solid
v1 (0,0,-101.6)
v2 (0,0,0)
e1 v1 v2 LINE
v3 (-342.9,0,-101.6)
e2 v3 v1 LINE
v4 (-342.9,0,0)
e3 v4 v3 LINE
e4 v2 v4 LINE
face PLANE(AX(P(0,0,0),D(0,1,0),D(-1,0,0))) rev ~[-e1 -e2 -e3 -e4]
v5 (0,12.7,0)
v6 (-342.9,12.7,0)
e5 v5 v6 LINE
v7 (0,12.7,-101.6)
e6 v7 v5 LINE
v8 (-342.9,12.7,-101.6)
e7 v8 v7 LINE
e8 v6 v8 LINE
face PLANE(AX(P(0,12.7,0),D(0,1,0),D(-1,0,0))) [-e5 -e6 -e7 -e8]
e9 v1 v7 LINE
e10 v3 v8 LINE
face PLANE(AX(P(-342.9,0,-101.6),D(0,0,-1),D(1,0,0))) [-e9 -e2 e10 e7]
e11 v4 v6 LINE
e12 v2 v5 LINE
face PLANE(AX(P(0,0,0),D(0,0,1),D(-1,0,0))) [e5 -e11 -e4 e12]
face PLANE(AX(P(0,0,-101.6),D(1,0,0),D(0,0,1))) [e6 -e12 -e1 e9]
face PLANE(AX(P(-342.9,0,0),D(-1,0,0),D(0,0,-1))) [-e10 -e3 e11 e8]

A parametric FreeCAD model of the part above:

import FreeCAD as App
import Part
import Sketcher
from FreeCAD import Vector
Q = App.Units.Quantity


def add_polygon(sketch, points):
    """Adds a closed chain of lines whose ends are joined by coincident constraints."""
    first, n = sketch.GeometryCount, len(points)
    for a, b in zip(points, points[1:] + points[:1]):
        sketch.addGeometry(Part.LineSegment(App.Vector(*a, 0), App.Vector(*b, 0)), False)
    for i in range(n):
        sketch.addConstraint(Sketcher.Constraint("Coincident", first + i, 2, first + (i + 1) % n, 1))

doc = App.newDocument("Part")
body = doc.addObject("PartDesign::Body", "Body")

sketch1 = body.newObject("Sketcher::SketchObject", "Sketch")
sketch1.AttachmentSupport = (doc.getObject("XZ_Plane"), [""])
sketch1.MapMode = "FlatFace"
add_polygon(sketch1, [(-342.9, 0), (0, 0), (0, -101.6), (-342.9, -101.6)])
sketch1.addConstraint([
    Sketcher.Constraint("Horizontal", 0),
    Sketcher.Constraint("Vertical", 1),
    Sketcher.Constraint("Horizontal", 2),
    Sketcher.Constraint("Vertical", 3),
    Sketcher.Constraint("Coincident", 0, 2, -1, 1),
    Sketcher.Constraint("DistanceY", 1, 2, 1, 1, Q("4 in")),
    Sketcher.Constraint("DistanceX", 0, 1, 0, 2, Q("13.5 in")),
])
pad1 = body.newObject("PartDesign::Pad", "Pad")
pad1.Profile = sketch1
pad1.Length = Q("0.5 in")
pad1.Reversed = True

doc.recompute()
